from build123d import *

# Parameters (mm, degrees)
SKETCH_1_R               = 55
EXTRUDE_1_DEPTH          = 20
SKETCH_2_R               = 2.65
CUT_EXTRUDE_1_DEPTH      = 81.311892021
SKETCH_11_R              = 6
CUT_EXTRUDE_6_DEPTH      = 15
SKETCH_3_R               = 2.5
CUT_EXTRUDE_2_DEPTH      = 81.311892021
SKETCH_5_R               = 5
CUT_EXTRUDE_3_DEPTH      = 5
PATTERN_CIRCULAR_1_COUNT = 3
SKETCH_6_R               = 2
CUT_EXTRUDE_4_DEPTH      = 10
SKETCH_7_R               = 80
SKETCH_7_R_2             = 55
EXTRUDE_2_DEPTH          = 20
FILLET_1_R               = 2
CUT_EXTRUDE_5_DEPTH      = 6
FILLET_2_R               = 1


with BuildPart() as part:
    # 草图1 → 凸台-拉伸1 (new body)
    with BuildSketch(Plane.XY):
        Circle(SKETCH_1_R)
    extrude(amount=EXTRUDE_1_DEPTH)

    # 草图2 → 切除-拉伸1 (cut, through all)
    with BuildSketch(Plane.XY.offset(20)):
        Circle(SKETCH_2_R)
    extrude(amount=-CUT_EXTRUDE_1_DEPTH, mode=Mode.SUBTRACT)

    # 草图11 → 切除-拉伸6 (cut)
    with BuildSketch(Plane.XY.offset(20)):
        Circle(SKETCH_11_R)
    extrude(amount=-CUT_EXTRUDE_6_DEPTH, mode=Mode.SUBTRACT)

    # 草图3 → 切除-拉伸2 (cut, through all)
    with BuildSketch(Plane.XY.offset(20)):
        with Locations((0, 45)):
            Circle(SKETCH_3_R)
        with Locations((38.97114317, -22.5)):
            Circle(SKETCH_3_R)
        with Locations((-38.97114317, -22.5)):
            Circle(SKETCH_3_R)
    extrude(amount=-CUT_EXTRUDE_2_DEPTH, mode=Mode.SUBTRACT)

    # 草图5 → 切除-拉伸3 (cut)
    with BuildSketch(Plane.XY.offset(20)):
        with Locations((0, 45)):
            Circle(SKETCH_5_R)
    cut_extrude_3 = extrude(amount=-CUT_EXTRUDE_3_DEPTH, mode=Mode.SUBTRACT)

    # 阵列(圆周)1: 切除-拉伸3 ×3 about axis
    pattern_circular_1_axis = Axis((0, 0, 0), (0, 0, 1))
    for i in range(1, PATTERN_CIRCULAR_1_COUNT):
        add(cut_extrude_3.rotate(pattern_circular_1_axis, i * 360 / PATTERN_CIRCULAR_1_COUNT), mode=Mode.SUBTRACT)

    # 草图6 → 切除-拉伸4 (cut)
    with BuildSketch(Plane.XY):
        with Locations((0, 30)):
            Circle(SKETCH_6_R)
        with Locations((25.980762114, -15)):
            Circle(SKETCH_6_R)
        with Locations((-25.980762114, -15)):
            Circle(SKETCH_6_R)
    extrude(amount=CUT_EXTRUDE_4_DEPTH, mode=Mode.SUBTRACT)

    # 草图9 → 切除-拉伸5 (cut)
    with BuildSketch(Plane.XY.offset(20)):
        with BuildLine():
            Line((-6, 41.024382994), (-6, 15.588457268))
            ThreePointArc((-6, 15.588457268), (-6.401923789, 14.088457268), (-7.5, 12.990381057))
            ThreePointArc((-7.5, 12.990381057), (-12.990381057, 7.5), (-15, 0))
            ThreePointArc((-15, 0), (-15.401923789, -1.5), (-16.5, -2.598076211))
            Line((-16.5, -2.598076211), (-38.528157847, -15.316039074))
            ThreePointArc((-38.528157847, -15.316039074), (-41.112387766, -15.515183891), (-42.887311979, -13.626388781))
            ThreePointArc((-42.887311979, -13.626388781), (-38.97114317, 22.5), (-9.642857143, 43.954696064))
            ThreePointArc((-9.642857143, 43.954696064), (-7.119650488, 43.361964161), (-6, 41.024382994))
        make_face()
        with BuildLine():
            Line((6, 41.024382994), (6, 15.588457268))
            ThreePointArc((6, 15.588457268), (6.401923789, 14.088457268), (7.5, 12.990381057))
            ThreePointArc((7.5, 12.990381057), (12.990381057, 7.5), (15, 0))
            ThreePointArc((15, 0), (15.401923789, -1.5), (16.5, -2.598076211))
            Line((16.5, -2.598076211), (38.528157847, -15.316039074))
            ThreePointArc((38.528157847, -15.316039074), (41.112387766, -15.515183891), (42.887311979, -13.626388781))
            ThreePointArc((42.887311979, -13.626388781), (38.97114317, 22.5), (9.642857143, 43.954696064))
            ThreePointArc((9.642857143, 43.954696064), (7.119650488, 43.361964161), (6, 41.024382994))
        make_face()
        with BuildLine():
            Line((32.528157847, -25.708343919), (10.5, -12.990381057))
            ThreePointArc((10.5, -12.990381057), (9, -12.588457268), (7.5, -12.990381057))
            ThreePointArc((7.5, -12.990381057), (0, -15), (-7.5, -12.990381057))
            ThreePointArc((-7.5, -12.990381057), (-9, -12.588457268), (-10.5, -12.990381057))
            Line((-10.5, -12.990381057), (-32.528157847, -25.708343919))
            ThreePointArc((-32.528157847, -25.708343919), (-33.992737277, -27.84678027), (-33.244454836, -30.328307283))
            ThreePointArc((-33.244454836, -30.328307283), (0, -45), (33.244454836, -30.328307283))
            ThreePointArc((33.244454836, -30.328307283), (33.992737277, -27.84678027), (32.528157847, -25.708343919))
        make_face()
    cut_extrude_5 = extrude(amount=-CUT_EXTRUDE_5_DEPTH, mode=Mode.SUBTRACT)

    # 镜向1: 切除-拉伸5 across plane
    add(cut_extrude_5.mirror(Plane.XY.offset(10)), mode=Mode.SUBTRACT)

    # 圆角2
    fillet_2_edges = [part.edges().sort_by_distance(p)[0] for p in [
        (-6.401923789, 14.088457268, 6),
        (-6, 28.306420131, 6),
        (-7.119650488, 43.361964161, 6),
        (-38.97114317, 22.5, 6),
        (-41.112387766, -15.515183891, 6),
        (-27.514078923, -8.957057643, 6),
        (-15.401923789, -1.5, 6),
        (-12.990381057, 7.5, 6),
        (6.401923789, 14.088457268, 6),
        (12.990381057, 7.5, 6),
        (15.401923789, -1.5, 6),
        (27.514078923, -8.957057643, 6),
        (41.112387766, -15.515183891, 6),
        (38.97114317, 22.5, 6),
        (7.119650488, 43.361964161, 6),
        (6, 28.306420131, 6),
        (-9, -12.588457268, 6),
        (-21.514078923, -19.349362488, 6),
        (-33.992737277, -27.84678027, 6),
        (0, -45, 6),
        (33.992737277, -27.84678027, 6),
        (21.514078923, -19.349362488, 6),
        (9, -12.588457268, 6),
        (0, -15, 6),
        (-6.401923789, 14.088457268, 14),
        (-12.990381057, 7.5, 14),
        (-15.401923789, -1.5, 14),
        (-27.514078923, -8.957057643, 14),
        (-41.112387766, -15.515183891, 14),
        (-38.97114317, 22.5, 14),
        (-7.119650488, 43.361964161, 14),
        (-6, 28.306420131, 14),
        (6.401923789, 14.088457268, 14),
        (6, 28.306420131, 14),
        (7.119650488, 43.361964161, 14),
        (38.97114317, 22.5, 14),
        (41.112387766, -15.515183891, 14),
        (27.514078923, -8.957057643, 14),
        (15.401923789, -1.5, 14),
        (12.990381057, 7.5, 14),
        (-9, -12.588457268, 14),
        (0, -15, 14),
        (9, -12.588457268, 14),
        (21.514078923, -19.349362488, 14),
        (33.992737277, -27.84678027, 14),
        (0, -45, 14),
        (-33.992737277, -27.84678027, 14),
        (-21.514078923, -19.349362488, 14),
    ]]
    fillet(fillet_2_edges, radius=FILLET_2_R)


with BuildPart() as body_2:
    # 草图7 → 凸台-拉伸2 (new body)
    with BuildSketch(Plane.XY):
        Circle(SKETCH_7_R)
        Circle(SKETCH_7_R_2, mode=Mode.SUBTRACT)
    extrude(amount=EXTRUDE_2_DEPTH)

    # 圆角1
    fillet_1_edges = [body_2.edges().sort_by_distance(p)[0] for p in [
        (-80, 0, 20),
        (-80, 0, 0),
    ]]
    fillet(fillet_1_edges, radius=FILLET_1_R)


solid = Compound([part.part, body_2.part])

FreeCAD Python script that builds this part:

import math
import FreeCAD as App
import Part
import Sketcher

V = App.Vector
Q = App.Units.Quantity


def edges_at(feature, points):
    """Names of the edges that pass closest to the given points."""
    edges = feature.Shape.Edges
    near = lambda p: min(range(len(edges)), key=lambda i: edges[i].distToShape(Part.Vertex(*p))[0])
    return sorted({f"Edge{near(p) + 1}" for p in points})

doc = App.newDocument("Part")
body = doc.addObject("PartDesign::Body", "Body")

# Sketch on XY plane
sketch1 = doc.addObject("Sketcher::SketchObject", "Sketch")
body.addObject(sketch1)
sketch1.AttachmentSupport = (doc.XY_Plane, [""])
sketch1.MapMode = "FlatFace"
sketch1.addGeometry(Part.Circle(V(0, 0, 0), V(0, 0, 1), 55), False)
sketch1.addConstraint([
    Sketcher.Constraint("Coincident", 0, 3, -1, 1),
    Sketcher.Constraint("Diameter", 0, Q("110 mm")),
])
pad1 = doc.addObject("PartDesign::Pad", "Pad")
body.addObject(pad1)
pad1.Profile = sketch1
pad1.Length = 20

# Sketch on XY plane
sketch2 = doc.addObject("Sketcher::SketchObject", "Sketch001")
body.addObject(sketch2)
sketch2.AttachmentSupport = (doc.XY_Plane, [""])
sketch2.MapMode = "FlatFace"
sketch2.AttachmentOffset = App.Placement(V(0, 0, 20), App.Rotation())
sketch2.addGeometry(Part.Circle(V(0, 0, 0), V(0, 0, 1), 2.6), False)
sketch2.addConstraint([
    Sketcher.Constraint("Coincident", 0, 3, -1, 1),
    Sketcher.Constraint("Diameter", 0, Q("5.3 mm")),
])
pocket1 = doc.addObject("PartDesign::Pocket", "Pocket")
body.addObject(pocket1)
pocket1.Profile = sketch2
pocket1.Type = "ThroughAll"

# Sketch on XY plane
sketch3 = doc.addObject("Sketcher::SketchObject", "Sketch002")
body.addObject(sketch3)
sketch3.AttachmentSupport = (doc.XY_Plane, [""])
sketch3.MapMode = "FlatFace"
sketch3.AttachmentOffset = App.Placement(V(0, 0, 20), App.Rotation())
sketch3.addGeometry(Part.Circle(V(0, 0, 0), V(0, 0, 1), 6), False)
sketch3.addConstraint([
    Sketcher.Constraint("Coincident", 0, 3, -1, 1),
    Sketcher.Constraint("Diameter", 0, Q("12 mm")),
])
pocket2 = doc.addObject("PartDesign::Pocket", "Pocket001")
body.addObject(pocket2)
pocket2.Profile = sketch3
pocket2.Length = 15

# Sketch on XY plane
sketch4 = doc.addObject("Sketcher::SketchObject", "Sketch003")
body.addObject(sketch4)
sketch4.AttachmentSupport = (doc.XY_Plane, [""])
sketch4.MapMode = "FlatFace"
sketch4.AttachmentOffset = App.Placement(V(0, 0, 20), App.Rotation())
sketch4.addGeometry([
    Part.Circle(V(0, 45, 0), V(0, 0, 1), 2.5),
    Part.Circle(V(39, -22.5, 0), V(0, 0, 1), 2.5),
    Part.Circle(V(-39, -22.5, 0), V(0, 0, 1), 2.5),
], False)
sketch4.addConstraint([
    Sketcher.Constraint("Equal", 0, 1),
    Sketcher.Constraint("Equal", 1, 2),
    Sketcher.Constraint("Symmetric", 1, 3, 2, 3, -2),
    Sketcher.Constraint("PointOnObject", 0, 3, -2),
    Sketcher.Constraint("Diameter", 0, Q("5 mm")),
    Sketcher.Constraint("DistanceY", -1, 1, 0, 3, Q("45 mm")),
    Sketcher.Constraint("DistanceY", 1, 3, -1, 1, Q("22.5 mm")),
    Sketcher.Constraint("DistanceX", -1, 1, 1, 3, Q("38.971143 mm")),
])
pocket3 = doc.addObject("PartDesign::Pocket", "Pocket002")
body.addObject(pocket3)
pocket3.Profile = sketch4
pocket3.Type = "ThroughAll"

# Sketch on XY plane
sketch5 = doc.addObject("Sketcher::SketchObject", "Sketch004")
body.addObject(sketch5)
sketch5.AttachmentSupport = (doc.XY_Plane, [""])
sketch5.MapMode = "FlatFace"
sketch5.AttachmentOffset = App.Placement(V(0, 0, 20), App.Rotation())
sketch5.addGeometry(Part.Circle(V(0, 45, 0), V(0, 0, 1), 5), False)
sketch5.addConstraint([
    Sketcher.Constraint("PointOnObject", 0, 3, -2),
    Sketcher.Constraint("Diameter", 0, Q("10 mm")),
    Sketcher.Constraint("DistanceY", -1, 1, 0, 3, Q("45 mm")),
])
pocket4 = doc.addObject("PartDesign::Pocket", "Pocket003")
body.addObject(pocket4)
pocket4.Profile = sketch5
pocket4.Length = 5
doc.recompute()

polarpattern = doc.addObject("PartDesign::PolarPattern", "PolarPattern")
body.addObject(polarpattern)
polarpattern.Originals = [pocket4]
polarpattern.Axis = (doc.Z_Axis, [""])
polarpattern.Angle = 360
polarpattern.Occurrences = 3
body.Tip = polarpattern

# Sketch on XY plane
sketch6 = doc.addObject("Sketcher::SketchObject", "Sketch005")
body.addObject(sketch6)
sketch6.AttachmentSupport = (doc.XY_Plane, [""])
sketch6.MapMode = "FlatFace"
sketch6.addGeometry([
    Part.Circle(V(0, 30, 0), V(0, 0, 1), 2),
    Part.Circle(V(26, -15, 0), V(0, 0, 1), 2),
    Part.Circle(V(-26, -15, 0), V(0, 0, 1), 2),
], False)
sketch6.addConstraint([
    Sketcher.Constraint("Equal", 0, 1),
    Sketcher.Constraint("Equal", 1, 2),
    Sketcher.Constraint("Symmetric", 1, 3, 2, 3, -2),
    Sketcher.Constraint("PointOnObject", 0, 3, -2),
    Sketcher.Constraint("Diameter", 0, Q("4 mm")),
    Sketcher.Constraint("DistanceY", -1, 1, 0, 3, Q("30 mm")),
    Sketcher.Constraint("DistanceY", 1, 3, -1, 1, Q("15 mm")),
    Sketcher.Constraint("DistanceX", -1, 1, 1, 3, Q("25.980762 mm")),
])
pocket5 = doc.addObject("PartDesign::Pocket", "Pocket004")
body.addObject(pocket5)
pocket5.Profile = sketch6
pocket5.Length = 10
pocket5.Reversed = True

# Sketch on XY plane
sketch7 = doc.addObject("Sketcher::SketchObject", "Sketch006")
body.addObject(sketch7)
sketch7.AttachmentSupport = (doc.XY_Plane, [""])
sketch7.MapMode = "FlatFace"
sketch7.AttachmentOffset = App.Placement(V(0, 0, 20), App.Rotation())
sketch7.addGeometry([
    Part.LineSegment(V(-6, 15.6, 0), V(-6, 41, 0)),  # 0
    Part.ArcOfCircle(Part.Circle(V(-9, 41, 0), V(0, 0, 1), 3), math.radians(0), math.radians(102)),  # 1
    Part.ArcOfCircle(Part.Circle(V(0, 0, 0), V(0, 0, 1), 45), math.radians(102), math.radians(198)),  # 2
    Part.ArcOfCircle(Part.Circle(V(-40, -12.7, 0), V(0, 0, 1), 3), math.radians(-162), math.radians(-60)),  # 3
    Part.LineSegment(V(-38.5, -15.3, 0), V(-16.5, -2.6, 0)),  # 4
    Part.ArcOfCircle(Part.Circle(V(-18, 0, 0), V(0, 0, 1), 3), math.radians(-60), math.radians(0)),  # 5
    Part.ArcOfCircle(Part.Circle(V(0, 0, 0), V(0, 0, 1), 15), math.radians(120), math.radians(180)),  # 6
    Part.ArcOfCircle(Part.Circle(V(-9, 15.6, 0), V(0, 0, 1), 3), math.radians(-60), math.radians(0)),  # 7
    Part.LineSegment(V(6, 41, 0), V(6, 15.6, 0)),  # 8
    Part.ArcOfCircle(Part.Circle(V(9, 15.6, 0), V(0, 0, 1), 3), math.radians(-180), math.radians(-120)),  # 9
    Part.ArcOfCircle(Part.Circle(V(0, 0, 0), V(0, 0, 1), 15), math.radians(0), math.radians(60)),  # 10
    Part.ArcOfCircle(Part.Circle(V(18, 0, 0), V(0, 0, 1), 3), math.radians(-180), math.radians(-120)),  # 11
    Part.LineSegment(V(16.5, -2.6, 0), V(38.5, -15.3, 0)),  # 12
    Part.ArcOfCircle(Part.Circle(V(40, -12.7, 0), V(0, 0, 1), 3), math.radians(-120), math.radians(-18)),  # 13
    Part.ArcOfCircle(Part.Circle(V(0, 0, 0), V(0, 0, 1), 45), math.radians(-18), math.radians(78)),  # 14
    Part.ArcOfCircle(Part.Circle(V(9, 41, 0), V(0, 0, 1), 3), math.radians(78), math.radians(180)),  # 15
    Part.LineSegment(V(32.5, -25.7, 0), V(10.5, -13, 0)),  # 16
    Part.ArcOfCircle(Part.Circle(V(9, -15.6, 0), V(0, 0, 1), 3), math.radians(60), math.radians(120)),  # 17
    Part.ArcOfCircle(Part.Circle(V(0, 0, 0), V(0, 0, 1), 15), math.radians(-120), math.radians(-60)),  # 18
    Part.ArcOfCircle(Part.Circle(V(-9, -15.6, 0), V(0, 0, 1), 3), math.radians(60), math.radians(120)),  # 19
    Part.LineSegment(V(-10.5, -13, 0), V(-32.5, -25.7, 0)),  # 20
    Part.ArcOfCircle(Part.Circle(V(-31, -28.3, 0), V(0, 0, 1), 3), math.radians(120), math.radians(222)),  # 21
    Part.ArcOfCircle(Part.Circle(V(0, 0, 0), V(0, 0, 1), 45), math.radians(-138), math.radians(-42)),  # 22
    Part.ArcOfCircle(Part.Circle(V(31, -28.3, 0), V(0, 0, 1), 3), math.radians(-42), math.radians(60)),  # 23
], False)
sketch7.addConstraint([
    Sketcher.Constraint("Tangent", 0, 2, 1, 1),
    Sketcher.Constraint("Tangent", 1, 2, 2, 1),
    Sketcher.Constraint("Tangent", 2, 2, 3, 1),
    Sketcher.Constraint("Tangent", 3, 2, 4, 1),
    Sketcher.Constraint("Tangent", 4, 2, 5, 1),
    Sketcher.Constraint("Tangent", 5, 2, 6, 2),
    Sketcher.Constraint("Tangent", 6, 1, 7, 1),
    Sketcher.Constraint("Tangent", 7, 2, 0, 1),
    Sketcher.Constraint("Tangent", 8, 2, 9, 1),
    Sketcher.Constraint("Tangent", 9, 2, 10, 2),
    Sketcher.Constraint("Tangent", 10, 1, 11, 1),
    Sketcher.Constraint("Tangent", 11, 2, 12, 1),
    Sketcher.Constraint("Tangent", 12, 2, 13, 1),
    Sketcher.Constraint("Tangent", 13, 2, 14, 1),
    Sketcher.Constraint("Tangent", 14, 2, 15, 1),
    Sketcher.Constraint("Tangent", 15, 2, 8, 1),
    Sketcher.Constraint("Tangent", 16, 2, 17, 1),
    Sketcher.Constraint("Tangent", 17, 2, 18, 2),
    Sketcher.Constraint("Tangent", 18, 1, 19, 1),
    Sketcher.Constraint("Tangent", 19, 2, 20, 1),
    Sketcher.Constraint("Tangent", 20, 2, 21, 1),
    Sketcher.Constraint("Tangent", 21, 2, 22, 1),
    Sketcher.Constraint("Tangent", 22, 2, 23, 1),
    Sketcher.Constraint("Tangent", 23, 2, 16, 1),
    Sketcher.Constraint("Vertical", 0),
    Sketcher.Constraint("Vertical", 8),
    Sketcher.Constraint("Coincident", 2, 3, -1, 1),
    Sketcher.Constraint("Coincident", 6, 3, -1, 1),
    Sketcher.Constraint("Coincident", 10, 3, -1, 1),
    Sketcher.Constraint("Coincident", 14, 3, -1, 1),
    Sketcher.Constraint("Coincident", 18, 3, -1, 1),
    Sketcher.Constraint("Coincident", 22, 3, -1, 1),
    Sketcher.Constraint("Equal", 1, 3),
    Sketcher.Constraint("Equal", 3, 5),
    Sketcher.Constraint("Equal", 5, 7),
    Sketcher.Constraint("Equal", 7, 9),
    Sketcher.Constraint("Equal", 6, 10),
    Sketcher.Constraint("Equal", 9, 11),
    Sketcher.Constraint("Equal", 11, 13),
    Sketcher.Constraint("Equal", 2, 14),
    Sketcher.Constraint("Equal", 13, 15),
    Sketcher.Constraint("Equal", 15, 17),
    Sketcher.Constraint("Equal", 10, 18),
    Sketcher.Constraint("Equal", 17, 19),
    Sketcher.Constraint("Equal", 19, 21),
    Sketcher.Constraint("Equal", 14, 22),
    Sketcher.Constraint("Equal", 21, 23),
    Sketcher.Constraint("Symmetric", 4, 2, 11, 2, -2),
    Sketcher.Constraint("Symmetric", 16, 2, 19, 2, -2),
    Sketcher.Constraint("PointOnObject", 5, 3, -1),
    Sketcher.Constraint("Parallel", 12, 16),
    Sketcher.Constraint("Horizontal", 7, 3, 9, 3),
    Sketcher.Constraint("Horizontal", 16, 2, 17, 2),
    Sketcher.Constraint("Vertical", 15, 3, 17, 3),
    Sketcher.Constraint("Equal", 12, 16),
    Sketcher.Constraint("Radius", 1, Q("3 mm")),
    Sketcher.Constraint("Radius", 2, Q("45 mm")),
    Sketcher.Constraint("Radius", 6, Q("15 mm")),
])
pocket6 = doc.addObject("PartDesign::Pocket", "Pocket005")
body.addObject(pocket6)
pocket6.Profile = sketch7
pocket6.Length = 6
doc.recompute()

datumplane = doc.addObject("PartDesign::Plane", "DatumPlane")
body.addObject(datumplane)
datumplane.AttachmentSupport = (doc.XY_Plane, [""])
datumplane.MapMode = "FlatFace"
datumplane.AttachmentOffset = App.Placement(V(0, 0, 10), App.Rotation())
mirrored = doc.addObject("PartDesign::Mirrored", "Mirrored")
body.addObject(mirrored)
mirrored.Originals = [pocket6]
mirrored.MirrorPlane = (datumplane, [""])
body.Tip = mirrored
doc.recompute()

fillet = doc.addObject("PartDesign::Fillet", "Fillet")
body.addObject(fillet)
fillet.Base = (mirrored, edges_at(mirrored, [
    (-6.402, 14.088, 6),
    (-6, 28.306, 6),
    (-7.12, 43.362, 6),
    (-38.971, 22.5, 6),
    (-41.112, -15.515, 6),
    (-27.514, -8.957, 6),
    (-15.402, -1.5, 6),
    (-12.99, 7.5, 6),
    (6.402, 14.088, 6),
    (12.99, 7.5, 6),
    (15.402, -1.5, 6),
    (27.514, -8.957, 6),
    (41.112, -15.515, 6),
    (38.971, 22.5, 6),
    (7.12, 43.362, 6),
    (6, 28.306, 6),
    (-9, -12.588, 6),
    (-21.514, -19.349, 6),
    (-33.993, -27.847, 6),
    (0, -45, 6),
    (33.993, -27.847, 6),
    (21.514, -19.349, 6),
    (9, -12.588, 6),
    (0, -15, 6),
    (-6.402, 14.088, 14),
    (-12.99, 7.5, 14),
    (-15.402, -1.5, 14),
    (-27.514, -8.957, 14),
    (-41.112, -15.515, 14),
    (-38.971, 22.5, 14),
    (-7.12, 43.362, 14),
    (-6, 28.306, 14),
    (6.402, 14.088, 14),
    (6, 28.306, 14),
    (7.12, 43.362, 14),
    (38.971, 22.5, 14),
    (41.112, -15.515, 14),
    (27.514, -8.957, 14),
    (15.402, -1.5, 14),
    (12.99, 7.5, 14),
    (-9, -12.588, 14),
    (0, -15, 14),
    (9, -12.588, 14),
    (21.514, -19.349, 14),
    (33.993, -27.847, 14),
    (0, -45, 14),
    (-33.993, -27.847, 14),
    (-21.514, -19.349, 14),
]))
fillet.Radius = 1
body2 = doc.addObject("PartDesign::Body", "Body001")

# Sketch on XY plane
sketch8 = doc.addObject("Sketcher::SketchObject", "Sketch007")
body2.addObject(sketch8)
sketch8.AttachmentSupport = (doc.getObject("XY_Plane001"), [""])
sketch8.MapMode = "FlatFace"
sketch8.addGeometry([
    Part.Circle(V(0, 0, 0), V(0, 0, 1), 80),
    Part.Circle(V(0, 0, 0), V(0, 0, 1), 55),
], False)
sketch8.addConstraint([
    Sketcher.Constraint("Coincident", 0, 3, -1, 1),
    Sketcher.Constraint("Coincident", 1, 3, -1, 1),
    Sketcher.Constraint("Diameter", 0, Q("160 mm")),
    Sketcher.Constraint("Diameter", 1, Q("110 mm")),
])
pad2 = doc.addObject("PartDesign::Pad", "Pad001")
body2.addObject(pad2)
pad2.Profile = sketch8
pad2.Length = 20
doc.recompute()

fillet2 = doc.addObject("PartDesign::Fillet", "Fillet001")
body2.addObject(fillet2)
fillet2.Base = (pad2, edges_at(pad2, [(-80, 0, 20), (-80, 0, 0)]))
fillet2.Radius = 2

doc.recompute()
